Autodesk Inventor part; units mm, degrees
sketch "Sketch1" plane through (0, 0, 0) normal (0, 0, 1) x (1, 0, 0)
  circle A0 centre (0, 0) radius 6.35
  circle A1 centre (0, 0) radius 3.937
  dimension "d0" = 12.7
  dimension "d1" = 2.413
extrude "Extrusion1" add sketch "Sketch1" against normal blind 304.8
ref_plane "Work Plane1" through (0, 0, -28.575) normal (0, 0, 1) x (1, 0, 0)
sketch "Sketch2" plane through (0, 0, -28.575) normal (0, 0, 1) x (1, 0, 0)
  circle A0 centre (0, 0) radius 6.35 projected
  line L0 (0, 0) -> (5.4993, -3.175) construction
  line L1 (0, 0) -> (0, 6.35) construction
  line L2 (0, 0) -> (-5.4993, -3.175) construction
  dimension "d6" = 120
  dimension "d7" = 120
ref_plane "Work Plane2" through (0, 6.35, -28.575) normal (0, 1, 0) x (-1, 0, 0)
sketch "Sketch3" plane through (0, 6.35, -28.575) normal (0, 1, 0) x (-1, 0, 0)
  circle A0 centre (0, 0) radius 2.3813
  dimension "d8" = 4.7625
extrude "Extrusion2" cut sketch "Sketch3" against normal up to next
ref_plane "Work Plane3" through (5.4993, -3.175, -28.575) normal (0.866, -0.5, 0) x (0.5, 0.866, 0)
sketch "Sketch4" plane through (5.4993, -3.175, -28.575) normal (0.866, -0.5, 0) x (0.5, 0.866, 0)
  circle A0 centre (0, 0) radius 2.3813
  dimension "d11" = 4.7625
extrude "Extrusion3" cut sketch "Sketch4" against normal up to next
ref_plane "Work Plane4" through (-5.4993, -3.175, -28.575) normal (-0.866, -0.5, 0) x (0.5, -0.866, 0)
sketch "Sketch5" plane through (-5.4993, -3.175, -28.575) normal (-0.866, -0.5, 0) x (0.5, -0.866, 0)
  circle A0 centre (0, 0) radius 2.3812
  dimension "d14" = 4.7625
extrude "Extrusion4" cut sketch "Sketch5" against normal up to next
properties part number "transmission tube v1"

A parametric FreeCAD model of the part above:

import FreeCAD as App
import Part
import Sketcher
from FreeCAD import Vector
Q = App.Units.Quantity

doc = App.newDocument("Part")
params = doc.addObject("Spreadsheet::Sheet", "Params")
for row, (alias, value) in enumerate([
    ("sketch1_diameter", "0.5 in"),
    ("sketch1_diameter2", "0.31 in"),
    ("pad1_length", "12 in"),
    ("sketch2_diameter", "0.1875 in"),
    ("sketch3_diameter", "0.1875 in"),
    ("sketch4_diameter", "0.1875 in"),
], start=1):
    params.set(f"A{row}", alias)
    params.set(f"B{row}", "=" + value)
    params.setAlias(f"B{row}", alias)

body = doc.addObject("PartDesign::Body", "Body")

sketch1 = body.newObject("Sketcher::SketchObject", "Sketch")
sketch1.AttachmentSupport = (doc.getObject("XY_Plane"), [""])
sketch1.MapMode = "FlatFace"
sketch1.addGeometry([
    Part.Circle(Vector(0, 0, 0), Vector(0, 0, 1), 6.3),
    Part.Circle(Vector(0, 0, 0), Vector(0, 0, 1), 3.9),
], False)
sketch1.addConstraint([
    Sketcher.Constraint("Coincident", 0, 3, -1, 1),
    Sketcher.Constraint("Coincident", 1, 3, -1, 1),
    Sketcher.Constraint("Diameter", 0, Q("0.5 in")),
    Sketcher.Constraint("Diameter", 1, Q("0.31 in")),
])
sketch1.setExpression("Constraints[2]", "Params.sketch1_diameter")
sketch1.setExpression("Constraints[3]", "Params.sketch1_diameter2")
pad1 = body.newObject("PartDesign::Pad", "Pad")
pad1.Profile = sketch1
pad1.setExpression("Length", "Params.pad1_length")
pad1.Reversed = True

sketch2 = body.newObject("Sketcher::SketchObject", "Sketch001")
sketch2.AttachmentSupport = (doc.getObject("XZ_Plane"), [""])
sketch2.MapMode = "FlatFace"
sketch2.AttachmentOffset = App.Placement(Vector(0, 0, -0.25 * 25.4), App.Rotation())
sketch2.addGeometry(Part.Circle(Vector(0, -28.6, 0), Vector(0, 0, 1), 2.4), False)
sketch2.addConstraint([
    Sketcher.Constraint("PointOnObject", 0, 3, -2),
    Sketcher.Constraint("Diameter", 0, Q("0.1875 in")),
    Sketcher.Constraint("DistanceY", 0, 3, -1, 1, Q("1.125 in")),
])
sketch2.setExpression("Constraints[1]", "Params.sketch2_diameter")
pocket1 = body.newObject("PartDesign::Pocket", "Pocket")
pocket1.Profile = sketch2
pocket1.Type = "UpToFirst"
pocket1.Reversed = True

sketch3 = body.newObject("Sketcher::SketchObject", "Sketch002")
sketch3.Placement = App.Placement(Vector(5.4993, -3.175, -28.575), App.Rotation(Vector(0.5, 0.866025404, 0), Vector(0, 0, 1), Vector(0.866025404, -0.5, 0), "ZXY"))
sketch3.addGeometry(Part.Circle(Vector(0, 0, 0), Vector(0, 0, 1), 2.4), False)
sketch3.addConstraint([
    Sketcher.Constraint("Coincident", 0, 3, -1, 1),
    Sketcher.Constraint("Diameter", 0, Q("0.1875 in")),
])
sketch3.setExpression("Constraints[1]", "Params.sketch3_diameter")
pocket2 = body.newObject("PartDesign::Pocket", "Pocket001")
pocket2.Profile = sketch3
pocket2.Type = "UpToFirst"

sketch4 = body.newObject("Sketcher::SketchObject", "Sketch003")
sketch4.Placement = App.Placement(Vector(-5.4993, -3.175, -28.575), App.Rotation(Vector(0.5, -0.866025404, 0), Vector(0, 0, 1), Vector(-0.866025404, -0.5, 0), "ZXY"))
sketch4.addGeometry(Part.Circle(Vector(0, 0, 0), Vector(0, 0, 1), 2.4), False)
sketch4.addConstraint([
    Sketcher.Constraint("Coincident", 0, 3, -1, 1),
    Sketcher.Constraint("Diameter", 0, Q("0.1875 in")),
])
sketch4.setExpression("Constraints[1]", "Params.sketch4_diameter")
pocket3 = body.newObject("PartDesign::Pocket", "Pocket002")
pocket3.Profile = sketch4
pocket3.Type = "UpToFirst"

doc.recompute()
